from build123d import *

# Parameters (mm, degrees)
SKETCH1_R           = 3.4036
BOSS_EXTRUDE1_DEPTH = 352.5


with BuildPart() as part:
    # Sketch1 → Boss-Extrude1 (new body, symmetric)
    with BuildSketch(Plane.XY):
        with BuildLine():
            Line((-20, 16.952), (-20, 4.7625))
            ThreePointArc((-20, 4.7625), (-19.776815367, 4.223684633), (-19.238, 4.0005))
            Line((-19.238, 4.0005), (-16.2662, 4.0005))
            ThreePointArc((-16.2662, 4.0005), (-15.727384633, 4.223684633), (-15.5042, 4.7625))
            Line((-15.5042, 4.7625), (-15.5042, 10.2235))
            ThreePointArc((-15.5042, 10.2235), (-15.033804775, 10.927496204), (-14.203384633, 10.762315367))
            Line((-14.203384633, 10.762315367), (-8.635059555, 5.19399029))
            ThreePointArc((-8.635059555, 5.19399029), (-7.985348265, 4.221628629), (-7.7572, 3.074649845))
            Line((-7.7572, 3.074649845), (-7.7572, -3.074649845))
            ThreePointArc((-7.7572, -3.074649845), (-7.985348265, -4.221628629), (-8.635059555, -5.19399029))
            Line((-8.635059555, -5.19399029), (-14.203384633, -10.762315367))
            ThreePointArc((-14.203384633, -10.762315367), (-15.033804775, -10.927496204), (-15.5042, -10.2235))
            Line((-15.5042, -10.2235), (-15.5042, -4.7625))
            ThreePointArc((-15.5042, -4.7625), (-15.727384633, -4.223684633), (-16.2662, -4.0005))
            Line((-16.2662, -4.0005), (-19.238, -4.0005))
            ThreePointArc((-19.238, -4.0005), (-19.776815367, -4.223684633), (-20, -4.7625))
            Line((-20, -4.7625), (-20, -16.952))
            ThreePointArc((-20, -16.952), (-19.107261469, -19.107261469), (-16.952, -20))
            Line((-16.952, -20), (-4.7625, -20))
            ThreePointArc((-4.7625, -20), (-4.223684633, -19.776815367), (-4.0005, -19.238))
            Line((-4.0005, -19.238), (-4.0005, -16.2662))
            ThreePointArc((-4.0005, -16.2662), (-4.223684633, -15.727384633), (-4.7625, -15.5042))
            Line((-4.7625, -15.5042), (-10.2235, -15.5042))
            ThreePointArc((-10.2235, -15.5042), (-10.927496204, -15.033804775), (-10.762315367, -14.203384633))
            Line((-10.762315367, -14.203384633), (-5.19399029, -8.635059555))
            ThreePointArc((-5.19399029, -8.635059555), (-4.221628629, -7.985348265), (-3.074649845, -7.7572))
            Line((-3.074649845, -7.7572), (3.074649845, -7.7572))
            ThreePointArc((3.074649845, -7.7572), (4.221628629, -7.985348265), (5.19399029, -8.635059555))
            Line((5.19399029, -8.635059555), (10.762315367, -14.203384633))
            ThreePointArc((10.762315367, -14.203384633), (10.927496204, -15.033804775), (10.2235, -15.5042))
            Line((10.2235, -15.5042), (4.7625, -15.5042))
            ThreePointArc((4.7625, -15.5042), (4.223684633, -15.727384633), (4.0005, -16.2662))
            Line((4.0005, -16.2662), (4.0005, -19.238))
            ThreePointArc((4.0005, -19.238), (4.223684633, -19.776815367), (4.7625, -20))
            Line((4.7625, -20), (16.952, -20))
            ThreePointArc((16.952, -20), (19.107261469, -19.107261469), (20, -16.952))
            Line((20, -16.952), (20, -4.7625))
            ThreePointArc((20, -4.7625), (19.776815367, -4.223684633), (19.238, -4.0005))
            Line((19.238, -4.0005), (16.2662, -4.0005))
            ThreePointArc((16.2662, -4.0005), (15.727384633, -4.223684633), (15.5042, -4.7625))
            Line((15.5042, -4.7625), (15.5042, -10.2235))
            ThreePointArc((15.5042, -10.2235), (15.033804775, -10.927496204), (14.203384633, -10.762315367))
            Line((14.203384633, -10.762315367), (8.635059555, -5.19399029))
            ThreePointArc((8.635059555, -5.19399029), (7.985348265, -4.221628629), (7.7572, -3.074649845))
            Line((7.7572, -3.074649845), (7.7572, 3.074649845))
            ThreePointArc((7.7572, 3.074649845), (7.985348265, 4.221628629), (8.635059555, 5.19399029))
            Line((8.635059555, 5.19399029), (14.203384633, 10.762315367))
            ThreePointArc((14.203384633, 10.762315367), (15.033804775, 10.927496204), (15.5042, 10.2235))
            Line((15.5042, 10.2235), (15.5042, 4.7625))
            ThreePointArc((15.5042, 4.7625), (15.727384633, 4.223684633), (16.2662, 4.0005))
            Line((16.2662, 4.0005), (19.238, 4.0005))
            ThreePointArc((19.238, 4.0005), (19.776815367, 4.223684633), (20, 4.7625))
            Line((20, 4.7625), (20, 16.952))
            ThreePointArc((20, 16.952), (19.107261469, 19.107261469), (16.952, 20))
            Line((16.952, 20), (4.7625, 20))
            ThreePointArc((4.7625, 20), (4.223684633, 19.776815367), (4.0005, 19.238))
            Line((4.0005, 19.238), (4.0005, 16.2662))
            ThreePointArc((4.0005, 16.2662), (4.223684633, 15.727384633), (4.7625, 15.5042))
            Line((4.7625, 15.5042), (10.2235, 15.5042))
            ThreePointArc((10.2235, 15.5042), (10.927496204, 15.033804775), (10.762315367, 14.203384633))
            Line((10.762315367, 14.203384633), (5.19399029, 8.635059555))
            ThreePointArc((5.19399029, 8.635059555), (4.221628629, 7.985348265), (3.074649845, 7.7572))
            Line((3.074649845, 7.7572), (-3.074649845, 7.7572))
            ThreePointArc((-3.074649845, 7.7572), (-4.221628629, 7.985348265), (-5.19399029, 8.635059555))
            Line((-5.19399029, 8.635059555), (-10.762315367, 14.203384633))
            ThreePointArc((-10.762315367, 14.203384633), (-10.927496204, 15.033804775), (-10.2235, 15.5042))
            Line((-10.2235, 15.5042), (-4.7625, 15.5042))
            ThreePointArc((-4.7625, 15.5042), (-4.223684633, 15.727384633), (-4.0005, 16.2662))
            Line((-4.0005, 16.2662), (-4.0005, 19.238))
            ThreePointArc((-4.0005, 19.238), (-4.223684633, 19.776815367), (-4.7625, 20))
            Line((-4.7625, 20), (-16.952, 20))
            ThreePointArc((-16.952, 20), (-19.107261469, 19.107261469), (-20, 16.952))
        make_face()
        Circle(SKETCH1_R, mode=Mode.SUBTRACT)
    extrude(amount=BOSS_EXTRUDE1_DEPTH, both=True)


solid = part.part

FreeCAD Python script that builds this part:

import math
import FreeCAD as App
import Part
import Sketcher
from FreeCAD import Vector
Q = App.Units.Quantity

doc = App.newDocument("Part")
body = doc.addObject("PartDesign::Body", "Body")

sketch1 = body.newObject("Sketcher::SketchObject", "Sketch")
sketch1.AttachmentSupport = (doc.getObject("XY_Plane"), [""])
sketch1.MapMode = "FlatFace"
sketch1.addGeometry([
    Part.LineSegment(Vector(-20, 16.952, 0), Vector(-20, 4.7625, 0)),
    Part.ArcOfCircle(Part.Circle(Vector(-19.238, 4.7625, 0), Vector(0, 0, 1), 0.762), math.radians(-180), math.radians(-90)),
    Part.LineSegment(Vector(-19.238, 4.0005, 0), Vector(-16.2662, 4.0005, 0)),
    Part.ArcOfCircle(Part.Circle(Vector(-16.2662, 4.7625, 0), Vector(0, 0, 1), 0.762), math.radians(-90), math.radians(0)),
    Part.LineSegment(Vector(-15.5042, 4.7625, 0), Vector(-15.5042, 10.2235, 0)),
    Part.ArcOfCircle(Part.Circle(Vector(-14.7422, 10.2235, 0), Vector(0, 0, 1), 0.762), math.radians(45), math.radians(180)),
    Part.LineSegment(Vector(-14.203385, 10.762315, 0), Vector(-8.63506, 5.19399, 0)),
    Part.ArcOfCircle(Part.Circle(Vector(-10.7544, 3.07465, 0), Vector(0, 0, 1), 2.9972), math.radians(0), math.radians(45)),
    Part.LineSegment(Vector(-7.7572, 3.07465, 0), Vector(-7.7572, -3.07465, 0)),
    Part.ArcOfCircle(Part.Circle(Vector(-10.7544, -3.07465, 0), Vector(0, 0, 1), 2.9972), math.radians(-45), math.radians(0)),
    Part.LineSegment(Vector(-8.63506, -5.19399, 0), Vector(-14.203385, -10.762315, 0)),
    Part.ArcOfCircle(Part.Circle(Vector(-14.7422, -10.2235, 0), Vector(0, 0, 1), 0.762), math.radians(180), math.radians(315)),
    Part.LineSegment(Vector(-15.5042, -10.2235, 0), Vector(-15.5042, -4.7625, 0)),
    Part.ArcOfCircle(Part.Circle(Vector(-16.2662, -4.7625, 0), Vector(0, 0, 1), 0.762), math.radians(0), math.radians(90)),
    Part.LineSegment(Vector(-16.2662, -4.0005, 0), Vector(-19.238, -4.0005, 0)),
    Part.ArcOfCircle(Part.Circle(Vector(-19.238, -4.7625, 0), Vector(0, 0, 1), 0.762), math.radians(90), math.radians(180)),
    Part.LineSegment(Vector(-20, -4.7625, 0), Vector(-20, -16.952, 0)),
    Part.ArcOfCircle(Part.Circle(Vector(-16.952, -16.952, 0), Vector(0, 0, 1), 3.048), math.radians(180), math.radians(270)),
    Part.LineSegment(Vector(-16.952, -20, 0), Vector(-4.7625, -20, 0)),
    Part.ArcOfCircle(Part.Circle(Vector(-4.7625, -19.238, 0), Vector(0, 0, 1), 0.762), math.radians(-90), math.radians(0)),
    Part.LineSegment(Vector(-4.0005, -19.238, 0), Vector(-4.0005, -16.2662, 0)),
    Part.ArcOfCircle(Part.Circle(Vector(-4.7625, -16.2662, 0), Vector(0, 0, 1), 0.762), math.radians(0), math.radians(90)),
    Part.LineSegment(Vector(-4.7625, -15.5042, 0), Vector(-10.2235, -15.5042, 0)),
    Part.ArcOfCircle(Part.Circle(Vector(-10.2235, -14.7422, 0), Vector(0, 0, 1), 0.762), math.radians(135), math.radians(270)),
    Part.LineSegment(Vector(-10.762315, -14.203385, 0), Vector(-5.19399, -8.63506, 0)),
    Part.ArcOfCircle(Part.Circle(Vector(-3.07465, -10.7544, 0), Vector(0, 0, 1), 2.9972), math.radians(90), math.radians(135)),
    Part.LineSegment(Vector(-3.07465, -7.7572, 0), Vector(3.07465, -7.7572, 0)),
    Part.ArcOfCircle(Part.Circle(Vector(3.07465, -10.7544, 0), Vector(0, 0, 1), 2.9972), math.radians(45), math.radians(90)),
    Part.LineSegment(Vector(5.19399, -8.63506, 0), Vector(10.762315, -14.203385, 0)),
    Part.ArcOfCircle(Part.Circle(Vector(10.2235, -14.7422, 0), Vector(0, 0, 1), 0.762), math.radians(-90), math.radians(45)),
    Part.LineSegment(Vector(10.2235, -15.5042, 0), Vector(4.7625, -15.5042, 0)),
    Part.ArcOfCircle(Part.Circle(Vector(4.7625, -16.2662, 0), Vector(0, 0, 1), 0.762), math.radians(90), math.radians(180)),
    Part.LineSegment(Vector(4.0005, -16.2662, 0), Vector(4.0005, -19.238, 0)),
    Part.ArcOfCircle(Part.Circle(Vector(4.7625, -19.238, 0), Vector(0, 0, 1), 0.762), math.radians(-180), math.radians(-90)),
    Part.LineSegment(Vector(4.7625, -20, 0), Vector(16.952, -20, 0)),
    Part.ArcOfCircle(Part.Circle(Vector(16.952, -16.952, 0), Vector(0, 0, 1), 3.048), math.radians(-90), math.radians(0)),
    Part.LineSegment(Vector(20, -16.952, 0), Vector(20, -4.7625, 0)),
    Part.ArcOfCircle(Part.Circle(Vector(19.238, -4.7625, 0), Vector(0, 0, 1), 0.762), math.radians(0), math.radians(90)),
    Part.LineSegment(Vector(19.238, -4.0005, 0), Vector(16.2662, -4.0005, 0)),
    Part.ArcOfCircle(Part.Circle(Vector(16.2662, -4.7625, 0), Vector(0, 0, 1), 0.762), math.radians(90), math.radians(180)),
    Part.LineSegment(Vector(15.5042, -4.7625, 0), Vector(15.5042, -10.2235, 0)),
    Part.ArcOfCircle(Part.Circle(Vector(14.7422, -10.2235, 0), Vector(0, 0, 1), 0.762), math.radians(-135), math.radians(0)),
    Part.LineSegment(Vector(14.203385, -10.762315, 0), Vector(8.63506, -5.19399, 0)),
    Part.ArcOfCircle(Part.Circle(Vector(10.7544, -3.07465, 0), Vector(0, 0, 1), 2.9972), math.radians(180), math.radians(225)),
    Part.LineSegment(Vector(7.7572, -3.07465, 0), Vector(7.7572, 3.07465, 0)),
    Part.ArcOfCircle(Part.Circle(Vector(10.7544, 3.07465, 0), Vector(0, 0, 1), 2.9972), math.radians(135), math.radians(180)),
    Part.LineSegment(Vector(8.63506, 5.19399, 0), Vector(14.203385, 10.762315, 0)),
    Part.ArcOfCircle(Part.Circle(Vector(14.7422, 10.2235, 0), Vector(0, 0, 1), 0.762), math.radians(0), math.radians(135)),
    Part.LineSegment(Vector(15.5042, 10.2235, 0), Vector(15.5042, 4.7625, 0)),
    Part.ArcOfCircle(Part.Circle(Vector(16.2662, 4.7625, 0), Vector(0, 0, 1), 0.762), math.radians(-180), math.radians(-90)),
    Part.LineSegment(Vector(16.2662, 4.0005, 0), Vector(19.238, 4.0005, 0)),
    Part.ArcOfCircle(Part.Circle(Vector(19.238, 4.7625, 0), Vector(0, 0, 1), 0.762), math.radians(-90), math.radians(0)),
    Part.LineSegment(Vector(20, 4.7625, 0), Vector(20, 16.952, 0)),
    Part.ArcOfCircle(Part.Circle(Vector(16.952, 16.952, 0), Vector(0, 0, 1), 3.048), math.radians(0), math.radians(90)),
    Part.LineSegment(Vector(16.952, 20, 0), Vector(4.7625, 20, 0)),
    Part.ArcOfCircle(Part.Circle(Vector(4.7625, 19.238, 0), Vector(0, 0, 1), 0.762), math.radians(90), math.radians(180)),
    Part.LineSegment(Vector(4.0005, 19.238, 0), Vector(4.0005, 16.2662, 0)),
    Part.ArcOfCircle(Part.Circle(Vector(4.7625, 16.2662, 0), Vector(0, 0, 1), 0.762), math.radians(-180), math.radians(-90)),
    Part.LineSegment(Vector(4.7625, 15.5042, 0), Vector(10.2235, 15.5042, 0)),
    Part.ArcOfCircle(Part.Circle(Vector(10.2235, 14.7422, 0), Vector(0, 0, 1), 0.762), math.radians(-45), math.radians(90)),
    Part.LineSegment(Vector(10.762315, 14.203385, 0), Vector(5.19399, 8.63506, 0)),
    Part.ArcOfCircle(Part.Circle(Vector(3.07465, 10.7544, 0), Vector(0, 0, 1), 2.9972), math.radians(-90), math.radians(-45)),
    Part.LineSegment(Vector(3.07465, 7.7572, 0), Vector(-3.07465, 7.7572, 0)),
    Part.ArcOfCircle(Part.Circle(Vector(-3.07465, 10.7544, 0), Vector(0, 0, 1), 2.9972), math.radians(-135), math.radians(-90)),
    Part.LineSegment(Vector(-5.19399, 8.63506, 0), Vector(-10.762315, 14.203385, 0)),
    Part.ArcOfCircle(Part.Circle(Vector(-10.2235, 14.7422, 0), Vector(0, 0, 1), 0.762), math.radians(90), math.radians(225)),
    Part.LineSegment(Vector(-10.2235, 15.5042, 0), Vector(-4.7625, 15.5042, 0)),
    Part.ArcOfCircle(Part.Circle(Vector(-4.7625, 16.2662, 0), Vector(0, 0, 1), 0.762), math.radians(-90), math.radians(0)),
    Part.LineSegment(Vector(-4.0005, 16.2662, 0), Vector(-4.0005, 19.238, 0)),
    Part.ArcOfCircle(Part.Circle(Vector(-4.7625, 19.238, 0), Vector(0, 0, 1), 0.762), math.radians(0), math.radians(90)),
    Part.LineSegment(Vector(-4.7625, 20, 0), Vector(-16.952, 20, 0)),
    Part.ArcOfCircle(Part.Circle(Vector(-16.952, 16.952, 0), Vector(0, 0, 1), 3.048), math.radians(90), math.radians(180)),
    Part.Circle(Vector(0, 0, 0), Vector(0, 0, 1), 3.4036),
], False)
sketch1.addConstraint([
    Sketcher.Constraint("Tangent", 0, 2, 1, 1),
    Sketcher.Constraint("Tangent", 1, 2, 2, 1),
    Sketcher.Constraint("Tangent", 2, 2, 3, 1),
    Sketcher.Constraint("Tangent", 3, 2, 4, 1),
    Sketcher.Constraint("Tangent", 4, 2, 5, 2),
    Sketcher.Constraint("Tangent", 5, 1, 6, 1),
    Sketcher.Constraint("Tangent", 6, 2, 7, 2),
    Sketcher.Constraint("Tangent", 7, 1, 8, 1),
    Sketcher.Constraint("Tangent", 8, 2, 9, 2),
    Sketcher.Constraint("Tangent", 9, 1, 10, 1),
    Sketcher.Constraint("Tangent", 10, 2, 11, 2),
    Sketcher.Constraint("Tangent", 11, 1, 12, 1),
    Sketcher.Constraint("Tangent", 12, 2, 13, 1),
    Sketcher.Constraint("Tangent", 13, 2, 14, 1),
    Sketcher.Constraint("Tangent", 14, 2, 15, 1),
    Sketcher.Constraint("Tangent", 15, 2, 16, 1),
    Sketcher.Constraint("Tangent", 16, 2, 17, 1),
    Sketcher.Constraint("Tangent", 17, 2, 18, 1),
    Sketcher.Constraint("Tangent", 18, 2, 19, 1),
    Sketcher.Constraint("Tangent", 19, 2, 20, 1),
    Sketcher.Constraint("Tangent", 20, 2, 21, 1),
    Sketcher.Constraint("Tangent", 21, 2, 22, 1),
    Sketcher.Constraint("Tangent", 22, 2, 23, 2),
    Sketcher.Constraint("Tangent", 23, 1, 24, 1),
    Sketcher.Constraint("Tangent", 24, 2, 25, 2),
    Sketcher.Constraint("Tangent", 25, 1, 26, 1),
    Sketcher.Constraint("Tangent", 26, 2, 27, 2),
    Sketcher.Constraint("Tangent", 27, 1, 28, 1),
    Sketcher.Constraint("Tangent", 28, 2, 29, 2),
    Sketcher.Constraint("Tangent", 29, 1, 30, 1),
    Sketcher.Constraint("Tangent", 30, 2, 31, 1),
    Sketcher.Constraint("Tangent", 31, 2, 32, 1),
    Sketcher.Constraint("Tangent", 32, 2, 33, 1),
    Sketcher.Constraint("Tangent", 33, 2, 34, 1),
    Sketcher.Constraint("Tangent", 34, 2, 35, 1),
    Sketcher.Constraint("Tangent", 35, 2, 36, 1),
    Sketcher.Constraint("Tangent", 36, 2, 37, 1),
    Sketcher.Constraint("Tangent", 37, 2, 38, 1),
    Sketcher.Constraint("Tangent", 38, 2, 39, 1),
    Sketcher.Constraint("Tangent", 39, 2, 40, 1),
    Sketcher.Constraint("Tangent", 40, 2, 41, 2),
    Sketcher.Constraint("Tangent", 41, 1, 42, 1),
    Sketcher.Constraint("Tangent", 42, 2, 43, 2),
    Sketcher.Constraint("Tangent", 43, 1, 44, 1),
    Sketcher.Constraint("Tangent", 44, 2, 45, 2),
    Sketcher.Constraint("Tangent", 45, 1, 46, 1),
    Sketcher.Constraint("Tangent", 46, 2, 47, 2),
    Sketcher.Constraint("Tangent", 47, 1, 48, 1),
    Sketcher.Constraint("Tangent", 48, 2, 49, 1),
    Sketcher.Constraint("Tangent", 49, 2, 50, 1),
    Sketcher.Constraint("Tangent", 50, 2, 51, 1),
    Sketcher.Constraint("Tangent", 51, 2, 52, 1),
    Sketcher.Constraint("Tangent", 52, 2, 53, 1),
    Sketcher.Constraint("Tangent", 53, 2, 54, 1),
    Sketcher.Constraint("Tangent", 54, 2, 55, 1),
    Sketcher.Constraint("Tangent", 55, 2, 56, 1),
    Sketcher.Constraint("Tangent", 56, 2, 57, 1),
    Sketcher.Constraint("Tangent", 57, 2, 58, 1),
    Sketcher.Constraint("Tangent", 58, 2, 59, 2),
    Sketcher.Constraint("Tangent", 59, 1, 60, 1),
    Sketcher.Constraint("Tangent", 60, 2, 61, 2),
    Sketcher.Constraint("Tangent", 61, 1, 62, 1),
    Sketcher.Constraint("Tangent", 62, 2, 63, 2),
    Sketcher.Constraint("Tangent", 63, 1, 64, 1),
    Sketcher.Constraint("Tangent", 64, 2, 65, 2),
    Sketcher.Constraint("Tangent", 65, 1, 66, 1),
    Sketcher.Constraint("Tangent", 66, 2, 67, 1),
    Sketcher.Constraint("Tangent", 67, 2, 68, 1),
    Sketcher.Constraint("Tangent", 68, 2, 69, 1),
    Sketcher.Constraint("Tangent", 69, 2, 70, 1),
    Sketcher.Constraint("Tangent", 70, 2, 71, 1),
    Sketcher.Constraint("Tangent", 71, 2, 0, 1),
    Sketcher.Constraint("Vertical", 0),
    Sketcher.Constraint("Horizontal", 2),
    Sketcher.Constraint("Vertical", 4),
    Sketcher.Constraint("Vertical", 8),
    Sketcher.Constraint("Vertical", 12),
    Sketcher.Constraint("Horizontal", 14),
    Sketcher.Constraint("Vertical", 16),
    Sketcher.Constraint("Horizontal", 18),
    Sketcher.Constraint("Vertical", 20),
    Sketcher.Constraint("Horizontal", 22),
    Sketcher.Constraint("Horizontal", 26),
    Sketcher.Constraint("Horizontal", 30),
    Sketcher.Constraint("Vertical", 32),
    Sketcher.Constraint("Horizontal", 34),
    Sketcher.Constraint("Vertical", 36),
    Sketcher.Constraint("Horizontal", 38),
    Sketcher.Constraint("Vertical", 40),
    Sketcher.Constraint("Vertical", 44),
    Sketcher.Constraint("Vertical", 48),
    Sketcher.Constraint("Horizontal", 50),
    Sketcher.Constraint("Vertical", 52),
    Sketcher.Constraint("Horizontal", 54),
    Sketcher.Constraint("Vertical", 56),
    Sketcher.Constraint("Horizontal", 58),
    Sketcher.Constraint("Horizontal", 62),
    Sketcher.Constraint("Horizontal", 66),
    Sketcher.Constraint("Vertical", 68),
    Sketcher.Constraint("Horizontal", 70),
    Sketcher.Constraint("Coincident", 72, 3, -1, 1),
    Sketcher.Constraint("Equal", 1, 3),
    Sketcher.Constraint("Equal", 3, 5),
    Sketcher.Constraint("Equal", 7, 9),
    Sketcher.Constraint("Equal", 5, 11),
    Sketcher.Constraint("Equal", 11, 13),
    Sketcher.Constraint("Equal", 13, 15),
    Sketcher.Constraint("Equal", 15, 19),
    Sketcher.Constraint("Equal", 19, 21),
    Sketcher.Constraint("Equal", 21, 23),
    Sketcher.Constraint("Equal", 9, 25),
    Sketcher.Constraint("Equal", 25, 27),
    Sketcher.Constraint("Equal", 23, 29),
    Sketcher.Constraint("Equal", 29, 31),
    Sketcher.Constraint("Equal", 31, 33),
    Sketcher.Constraint("Equal", 17, 35),
    Sketcher.Constraint("Equal", 33, 37),
    Sketcher.Constraint("Equal", 37, 39),
    Sketcher.Constraint("Equal", 39, 41),
    Sketcher.Constraint("Equal", 27, 43),
    Sketcher.Constraint("Equal", 43, 45),
    Sketcher.Constraint("Equal", 41, 47),
    Sketcher.Constraint("Equal", 47, 49),
    Sketcher.Constraint("Equal", 49, 51),
    Sketcher.Constraint("Equal", 35, 53),
    Sketcher.Constraint("Equal", 51, 55),
    Sketcher.Constraint("Equal", 55, 57),
    Sketcher.Constraint("Equal", 57, 59),
    Sketcher.Constraint("Equal", 45, 61),
    Sketcher.Constraint("Equal", 61, 63),
    Sketcher.Constraint("Equal", 59, 65),
    Sketcher.Constraint("Equal", 65, 67),
    Sketcher.Constraint("Equal", 67, 69),
    Sketcher.Constraint("Equal", 53, 71),
    Sketcher.Constraint("Symmetric", 1, 3, 37, 3, -1, 1),
    Sketcher.Constraint("Symmetric", 5, 3, 41, 3, -1, 1),
    Sketcher.Constraint("Symmetric", 7, 3, 43, 3, -1, 1),
    Sketcher.Constraint("Symmetric", 11, 3, 47, 3, -1, 1),
    Sketcher.Constraint("Symmetric", 15, 3, 51, 3, -1, 1),
    Sketcher.Constraint("Symmetric", 19, 3, 55, 3, -1, 1),
    Sketcher.Constraint("Symmetric", 23, 3, 59, 3, -1, 1),
    Sketcher.Constraint("Symmetric", 25, 3, 61, 3, -1, 1),
    Sketcher.Constraint("Symmetric", 29, 3, 65, 3, -1, 1),
    Sketcher.Constraint("Symmetric", 33, 3, 69, 3, -1, 1),
    Sketcher.Constraint("Symmetric", 23, 3, 29, 3, -2),
    Sketcher.Constraint("Symmetric", 19, 3, 33, 3, -2),
    Sketcher.Constraint("Symmetric", 15, 3, 37, 3, -2),
    Sketcher.Constraint("Symmetric", 11, 3, 41, 3, -2),
    Sketcher.Constraint("Perpendicular", 6, 10),
    Sketcher.Constraint("Parallel", 10, 24),
    Sketcher.Constraint("Perpendicular", 24, 28),
    Sketcher.Constraint("Perpendicular", 42, 46),
    Sketcher.Constraint("Perpendicular", 60, 64),
    Sketcher.Constraint("Horizontal", 9, 3, 43, 3),
    Sketcher.Constraint("Equal", 70, 0),
    Sketcher.Constraint("Equal", 66, 4),
    Sketcher.Constraint("Equal", 62, 8),
    Sketcher.Constraint("Equal", 50, 20),
    Sketcher.Constraint("Equal", 10, 24),
    Sketcher.Constraint("Radius", 1, Q("0.03 in")),
    Sketcher.Constraint("Radius", 17, Q("0.12 in")),
    Sketcher.Constraint("Diameter", 72, Q("0.268 in")),
    Sketcher.Constraint("Radius", 7, Q("0.118 in")),
    Sketcher.Constraint("DistanceX", 2, 1, 2, 2, Q("0.117 in")),
    Sketcher.Constraint("DistanceX", 22, 2, 22, 1, Q("0.215 in")),
    Sketcher.Constraint("DistanceY", -1, 1, 1, 3, Q("0.1875 in")),
    Sketcher.Constraint("DistanceX", 18, 1, 18, 2, 12.1895),
    Sketcher.Constraint("DistanceX", 26, 1, 26, 2, 6.1493),
])
pad1 = body.newObject("PartDesign::Pad", "Pad")
pad1.Profile = sketch1
pad1.Length = 705
pad1.Midplane = True

doc.recompute()
